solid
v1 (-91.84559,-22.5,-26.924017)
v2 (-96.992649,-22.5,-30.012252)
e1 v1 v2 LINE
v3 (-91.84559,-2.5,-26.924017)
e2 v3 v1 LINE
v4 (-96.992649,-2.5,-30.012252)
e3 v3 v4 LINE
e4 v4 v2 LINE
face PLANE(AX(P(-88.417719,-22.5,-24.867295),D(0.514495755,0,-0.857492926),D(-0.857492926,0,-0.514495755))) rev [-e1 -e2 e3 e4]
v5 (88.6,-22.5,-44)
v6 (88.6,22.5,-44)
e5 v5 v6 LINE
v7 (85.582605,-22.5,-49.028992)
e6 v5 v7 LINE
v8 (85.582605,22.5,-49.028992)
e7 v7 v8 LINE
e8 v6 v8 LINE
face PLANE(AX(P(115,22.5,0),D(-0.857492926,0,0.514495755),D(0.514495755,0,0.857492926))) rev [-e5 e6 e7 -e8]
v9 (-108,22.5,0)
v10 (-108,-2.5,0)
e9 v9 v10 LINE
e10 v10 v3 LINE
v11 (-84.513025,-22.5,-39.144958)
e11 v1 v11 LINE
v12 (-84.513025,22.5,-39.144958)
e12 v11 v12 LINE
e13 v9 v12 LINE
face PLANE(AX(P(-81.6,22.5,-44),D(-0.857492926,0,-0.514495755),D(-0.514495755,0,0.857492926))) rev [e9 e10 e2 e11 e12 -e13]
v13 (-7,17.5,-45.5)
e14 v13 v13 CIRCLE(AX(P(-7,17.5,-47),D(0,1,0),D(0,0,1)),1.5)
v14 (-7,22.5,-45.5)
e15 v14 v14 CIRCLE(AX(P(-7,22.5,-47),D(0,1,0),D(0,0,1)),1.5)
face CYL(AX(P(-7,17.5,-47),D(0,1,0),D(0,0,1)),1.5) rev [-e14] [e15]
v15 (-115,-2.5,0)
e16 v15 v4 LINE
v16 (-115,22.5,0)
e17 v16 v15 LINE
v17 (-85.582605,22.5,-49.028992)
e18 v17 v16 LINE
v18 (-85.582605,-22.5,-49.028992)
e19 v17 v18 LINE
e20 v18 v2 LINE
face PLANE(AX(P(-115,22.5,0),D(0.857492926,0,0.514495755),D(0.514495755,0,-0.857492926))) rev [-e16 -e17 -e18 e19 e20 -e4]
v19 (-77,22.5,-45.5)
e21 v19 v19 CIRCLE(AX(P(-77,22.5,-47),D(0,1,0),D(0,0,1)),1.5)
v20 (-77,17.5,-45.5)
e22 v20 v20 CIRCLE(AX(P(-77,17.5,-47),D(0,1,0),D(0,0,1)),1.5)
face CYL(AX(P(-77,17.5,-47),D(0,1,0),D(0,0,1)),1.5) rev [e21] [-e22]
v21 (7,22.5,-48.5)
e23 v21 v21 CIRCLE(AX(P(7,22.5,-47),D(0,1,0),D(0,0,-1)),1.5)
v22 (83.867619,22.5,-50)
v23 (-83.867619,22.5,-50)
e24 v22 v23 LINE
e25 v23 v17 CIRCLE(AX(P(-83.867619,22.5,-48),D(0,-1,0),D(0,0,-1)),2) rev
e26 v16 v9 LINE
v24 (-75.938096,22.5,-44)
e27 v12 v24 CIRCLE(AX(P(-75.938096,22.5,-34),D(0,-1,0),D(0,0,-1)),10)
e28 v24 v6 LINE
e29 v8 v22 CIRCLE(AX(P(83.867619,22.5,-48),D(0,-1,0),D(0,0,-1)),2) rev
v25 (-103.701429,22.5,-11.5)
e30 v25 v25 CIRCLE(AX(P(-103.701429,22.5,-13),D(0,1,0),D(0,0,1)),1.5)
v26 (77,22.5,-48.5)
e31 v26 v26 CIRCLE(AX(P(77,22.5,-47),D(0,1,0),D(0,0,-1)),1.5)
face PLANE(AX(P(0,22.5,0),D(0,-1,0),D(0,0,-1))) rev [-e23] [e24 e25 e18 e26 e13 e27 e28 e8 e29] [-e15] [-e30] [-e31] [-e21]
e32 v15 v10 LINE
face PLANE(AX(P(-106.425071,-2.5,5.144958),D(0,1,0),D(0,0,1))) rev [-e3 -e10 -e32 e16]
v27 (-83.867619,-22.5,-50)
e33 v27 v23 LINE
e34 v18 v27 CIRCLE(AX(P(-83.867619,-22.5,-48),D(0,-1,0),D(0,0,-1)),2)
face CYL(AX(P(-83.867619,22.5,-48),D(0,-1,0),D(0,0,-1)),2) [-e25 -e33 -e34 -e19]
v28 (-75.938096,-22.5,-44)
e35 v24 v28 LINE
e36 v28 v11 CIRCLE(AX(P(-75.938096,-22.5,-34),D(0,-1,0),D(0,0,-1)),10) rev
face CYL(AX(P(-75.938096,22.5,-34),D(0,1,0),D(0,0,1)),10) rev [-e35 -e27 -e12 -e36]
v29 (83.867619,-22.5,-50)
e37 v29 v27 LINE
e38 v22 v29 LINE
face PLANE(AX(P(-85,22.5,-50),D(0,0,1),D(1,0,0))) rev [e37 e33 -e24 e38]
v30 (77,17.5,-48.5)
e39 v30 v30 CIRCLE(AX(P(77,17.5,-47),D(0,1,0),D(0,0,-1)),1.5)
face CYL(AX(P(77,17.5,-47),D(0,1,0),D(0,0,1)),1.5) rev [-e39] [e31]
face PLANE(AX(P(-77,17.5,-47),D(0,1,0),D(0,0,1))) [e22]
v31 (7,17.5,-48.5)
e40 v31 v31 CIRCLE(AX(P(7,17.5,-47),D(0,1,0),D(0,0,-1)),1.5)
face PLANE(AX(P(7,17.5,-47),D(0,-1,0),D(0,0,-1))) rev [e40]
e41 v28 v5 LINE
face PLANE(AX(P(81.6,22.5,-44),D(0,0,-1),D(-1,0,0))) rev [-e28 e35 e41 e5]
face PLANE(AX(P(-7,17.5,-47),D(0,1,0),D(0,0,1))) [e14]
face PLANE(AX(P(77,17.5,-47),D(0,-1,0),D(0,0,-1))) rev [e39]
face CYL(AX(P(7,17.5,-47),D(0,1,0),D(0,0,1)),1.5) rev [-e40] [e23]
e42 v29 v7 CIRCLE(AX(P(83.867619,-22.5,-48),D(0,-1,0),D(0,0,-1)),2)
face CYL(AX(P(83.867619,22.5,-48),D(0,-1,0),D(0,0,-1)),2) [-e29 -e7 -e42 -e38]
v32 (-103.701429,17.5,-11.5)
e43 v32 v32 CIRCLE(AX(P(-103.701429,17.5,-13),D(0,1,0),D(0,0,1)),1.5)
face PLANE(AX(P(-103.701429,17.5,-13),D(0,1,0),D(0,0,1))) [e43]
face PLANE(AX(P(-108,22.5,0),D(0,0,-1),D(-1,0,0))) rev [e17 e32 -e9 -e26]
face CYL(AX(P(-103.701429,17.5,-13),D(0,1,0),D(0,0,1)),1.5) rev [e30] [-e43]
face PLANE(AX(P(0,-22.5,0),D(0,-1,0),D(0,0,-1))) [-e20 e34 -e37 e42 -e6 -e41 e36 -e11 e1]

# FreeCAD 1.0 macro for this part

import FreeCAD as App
import Part
import Sketcher


def edges_at(feature, points):
    """Names of the edges that pass closest to the given points."""
    edges = feature.Shape.Edges
    near = lambda p: min(range(len(edges)), key=lambda i: edges[i].distToShape(Part.Vertex(*p))[0])
    return sorted({f"Edge{near(p) + 1}" for p in points})

doc = App.newDocument("Part")
body = doc.addObject("PartDesign::Body", "Body")

# Sketch on XZ plane
sketch1 = body.newObject("Sketcher::SketchObject", "Sketch")
sketch1.AttachmentSupport = (doc.getObject("XZ_Plane"), [""])
sketch1.MapMode = "FlatFace"
sketch1.addGeometry([
    Part.LineSegment(App.Vector(-85, -50, 0), App.Vector(-115, 0, 0)),  # 0
    Part.LineSegment(App.Vector(-115, 0, 0), App.Vector(-108, 0, 0)),  # 1
    Part.LineSegment(App.Vector(-108, 0, 0), App.Vector(-81.6, -44, 0)),  # 2
    Part.LineSegment(App.Vector(-81.6, -44, 0), App.Vector(81.6, -44, 0)),  # 3
    Part.LineSegment(App.Vector(81.6, -44, 0), App.Vector(108, 0, 0)),  # 4
    Part.LineSegment(App.Vector(108, 0, 0), App.Vector(115, 0, 0)),  # 5
    Part.LineSegment(App.Vector(115, 0, 0), App.Vector(85, -50, 0)),  # 6
    Part.LineSegment(App.Vector(85, -50, 0), App.Vector(-85, -50, 0)),  # 7
], False)
sketch1.addConstraint([
    Sketcher.Constraint("Coincident", 0, 2, 1, 1),
    Sketcher.Constraint("Coincident", 1, 2, 2, 1),
    Sketcher.Constraint("Coincident", 2, 2, 3, 1),
    Sketcher.Constraint("Coincident", 3, 2, 4, 1),
    Sketcher.Constraint("Coincident", 4, 2, 5, 1),
    Sketcher.Constraint("Coincident", 5, 2, 6, 1),
    Sketcher.Constraint("Coincident", 6, 2, 7, 1),
    Sketcher.Constraint("Coincident", 7, 2, 0, 1),
    Sketcher.Constraint("Horizontal", 1),
    Sketcher.Constraint("Horizontal", 3),
    Sketcher.Constraint("Horizontal", 5),
    Sketcher.Constraint("Horizontal", 7),
    Sketcher.Constraint("Symmetric", 1, 2, 4, 2, -1, 1),
    Sketcher.Constraint("Symmetric", 0, 2, 5, 2, -2),
    Sketcher.Constraint("Parallel", 0, 2),
    Sketcher.Constraint("Parallel", 4, 6),
    Sketcher.Constraint("Equal", 2, 4),
    Sketcher.Constraint("DistanceX", 1, 1, 1, 2, 7.0),
    Sketcher.Constraint("DistanceX", 7, 2, 7, 1, 170.0),
    Sketcher.Constraint("DistanceX", 3, 1, 3, 2, 163.2),
    Sketcher.Constraint("DistanceX", 0, 2, -1, 1, 115.0),
    Sketcher.Constraint("DistanceY", 2, 2, -1, 1, 44.0),
])
pad1 = body.newObject("PartDesign::Pad", "Pad")
pad1.Profile = sketch1
pad1.Length = 45
pad1.Midplane = True

# Sketch on XZ plane
sketch2 = body.newObject("Sketcher::SketchObject", "Sketch001")
sketch2.AttachmentSupport = (doc.getObject("XZ_Plane"), [""])
sketch2.MapMode = "FlatFace"
sketch2.AttachmentOffset = App.Placement(App.Vector(0, 0, -22.5), App.Rotation())
sketch2.addGeometry([
    Part.Circle(App.Vector(-103.701429, -13, 0), App.Vector(0, 0, 1), 1.5),  # 0
    Part.Circle(App.Vector(-77, -47, 0), App.Vector(0, 0, 1), 1.5),  # 1
    Part.Circle(App.Vector(-7, -47, 0), App.Vector(0, 0, 1), 1.5),  # 2
    Part.Circle(App.Vector(7, -47, 0), App.Vector(0, 0, 1), 1.5),  # 3
    Part.Circle(App.Vector(77, -47, 0), App.Vector(0, 0, 1), 1.5),  # 4
    Part.Circle(App.Vector(103.701429, -13, 0), App.Vector(0, 0, 1), 1.5),  # 5
], False)
sketch2.addConstraint([
    Sketcher.Constraint("Equal", 0, 1),
    Sketcher.Constraint("Equal", 1, 2),
    Sketcher.Constraint("Equal", 2, 3),
    Sketcher.Constraint("Equal", 3, 4),
    Sketcher.Constraint("Equal", 4, 5),
    Sketcher.Constraint("Symmetric", 2, 3, 3, 3, -2),
    Sketcher.Constraint("Symmetric", 1, 3, 4, 3, -2),
    Sketcher.Constraint("Symmetric", 0, 3, 5, 3, -2),
    Sketcher.Constraint("Horizontal", 1, 3, 2, 3),
    Sketcher.Constraint("Diameter", 0, 3.0),
    Sketcher.Constraint("DistanceY", 0, 3, -1, 1, 13.0),
    Sketcher.Constraint("DistanceX", 1, 3, -1, 1, 77.0),
    Sketcher.Constraint("DistanceY", 1, 3, -1, 1, 47.0),
    Sketcher.Constraint("DistanceX", 2, 3, -1, 1, 7.0),
    Sketcher.Constraint("DistanceX", 0, 3, -1, 1, 103.701429),
])
pocket1 = body.newObject("PartDesign::Pocket", "Pocket")
pocket1.Profile = sketch2
pocket1.Length = 5
pocket1.Reversed = True
doc.recompute()

fillet = body.newObject("PartDesign::Fillet", "Fillet")
fillet.Base = (pocket1, edges_at(pocket1, [(-85, 0, -50), (85, 0, -50)]))
fillet.Radius = 2

# Sketch on an angled plane
sketch3 = body.newObject("Sketcher::SketchObject", "Sketch002")
sketch3.Placement = App.Placement(App.Vector(-84.558824, 0, -50.735294), App.Rotation(App.Vector(-0.514495755, 0, 0.857492926), App.Vector(0, 1, 0), App.Vector(-0.857492926, 0, -0.514495755), "ZXY"))
sketch3.addGeometry([
    Part.LineSegment(App.Vector(24.167012, -2.5, 0), App.Vector(24.167012, -22.5, 0)),
    Part.LineSegment(App.Vector(24.167012, -22.5, 0), App.Vector(59.167012, -22.5, 0)),
    Part.LineSegment(App.Vector(59.167012, -22.5, 0), App.Vector(59.167012, -2.5, 0)),
    Part.LineSegment(App.Vector(59.167012, -2.5, 0), App.Vector(24.167012, -2.5, 0)),
], False)
sketch3.addConstraint([
    Sketcher.Constraint("Coincident", 0, 2, 1, 1),
    Sketcher.Constraint("Coincident", 1, 2, 2, 1),
    Sketcher.Constraint("Coincident", 2, 2, 3, 1),
    Sketcher.Constraint("Coincident", 3, 2, 0, 1),
    Sketcher.Constraint("Vertical", 0),
    Sketcher.Constraint("Horizontal", 1),
    Sketcher.Constraint("Vertical", 2),
    Sketcher.Constraint("Horizontal", 3),
    Sketcher.Constraint("DistanceX", 1, 1, 1, 2, 35.0),
    Sketcher.Constraint("DistanceY", 0, 2, 0, 1, 20.0),
    Sketcher.Constraint("DistanceY", 0, 2, -1, 1, 22.5),
    Sketcher.Constraint("DistanceX", -1, 1, 0, 2, 24.167012),
])
pocket2 = body.newObject("PartDesign::Pocket", "Pocket001")
pocket2.Profile = sketch3
pocket2.Length = 10

# Sketch on YZ plane
sketch4 = body.newObject("Sketcher::SketchObject", "Sketch003")
sketch4.AttachmentSupport = (doc.getObject("YZ_Plane"), [""])
sketch4.MapMode = "FlatFace"
sketch4.addGeometry([
    Part.LineSegment(App.Vector(22.5, 0, 0), App.Vector(-22.5, 0, 0)),
    Part.LineSegment(App.Vector(-22.5, 0, 0), App.Vector(-22.5, -44, 0)),
    Part.LineSegment(App.Vector(-22.5, -44, 0), App.Vector(22.5, -44, 0)),
    Part.LineSegment(App.Vector(22.5, -44, 0), App.Vector(22.5, 0, 0)),
], False)
sketch4.addConstraint([
    Sketcher.Constraint("Coincident", 0, 2, 1, 1),
    Sketcher.Constraint("Coincident", 1, 2, 2, 1),
    Sketcher.Constraint("Coincident", 2, 2, 3, 1),
    Sketcher.Constraint("Coincident", 3, 2, 0, 1),
    Sketcher.Constraint("Horizontal", 0),
    Sketcher.Constraint("Vertical", 1),
    Sketcher.Constraint("Horizontal", 2),
    Sketcher.Constraint("Vertical", 3),
    Sketcher.Constraint("Symmetric", 0, 2, 3, 2, -1, 1),
    Sketcher.Constraint("DistanceX", 0, 2, 0, 1, 45.0),
    Sketcher.Constraint("DistanceY", 1, 2, 1, 1, 44.0),
])
pocket3 = body.newObject("PartDesign::Pocket", "Pocket002")
pocket3.Profile = sketch4
pocket3.Type = "ThroughAll"
pocket3.Reversed = True
doc.recompute()

fillet2 = body.newObject("PartDesign::Fillet", "Fillet001")
fillet2.Base = (pocket3, edges_at(pocket3, [(-81.6, 0, -44)]))
fillet2.Radius = 10

doc.recompute()
